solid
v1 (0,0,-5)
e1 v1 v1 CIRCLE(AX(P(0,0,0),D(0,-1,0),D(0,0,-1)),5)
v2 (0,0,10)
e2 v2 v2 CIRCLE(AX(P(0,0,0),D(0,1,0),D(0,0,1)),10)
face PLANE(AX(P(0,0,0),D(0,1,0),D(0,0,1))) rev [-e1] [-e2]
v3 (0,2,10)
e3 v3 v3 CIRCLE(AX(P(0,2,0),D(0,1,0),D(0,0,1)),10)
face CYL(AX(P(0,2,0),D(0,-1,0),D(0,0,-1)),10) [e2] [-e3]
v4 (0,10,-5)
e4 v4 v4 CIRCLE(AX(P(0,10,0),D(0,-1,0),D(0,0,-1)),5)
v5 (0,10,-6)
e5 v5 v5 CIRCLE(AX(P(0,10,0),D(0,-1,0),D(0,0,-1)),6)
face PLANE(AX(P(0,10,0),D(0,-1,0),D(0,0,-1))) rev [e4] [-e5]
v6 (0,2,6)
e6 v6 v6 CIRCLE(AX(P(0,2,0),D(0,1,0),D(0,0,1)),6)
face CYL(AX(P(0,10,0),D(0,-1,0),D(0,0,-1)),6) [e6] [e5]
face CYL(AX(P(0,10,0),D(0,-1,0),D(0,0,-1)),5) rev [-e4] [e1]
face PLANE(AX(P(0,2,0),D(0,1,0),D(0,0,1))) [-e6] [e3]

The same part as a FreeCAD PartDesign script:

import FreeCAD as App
import Part
import Sketcher

doc = App.newDocument("Part")
body = doc.addObject("PartDesign::Body", "Body")

sketch1 = body.newObject("Sketcher::SketchObject", "Sketch")
sketch1.AttachmentSupport = (doc.getObject("XZ_Plane"), [""])
sketch1.MapMode = "FlatFace"
sketch1.addGeometry(Part.Circle(App.Vector(0, 0, 0), App.Vector(0, 0, 1), 10), False)
sketch1.addConstraint([
    Sketcher.Constraint("Coincident", 0, 3, -1, 1),
    Sketcher.Constraint("Diameter", 0, 20.0),
])
pad1 = body.newObject("PartDesign::Pad", "Pad")
pad1.Profile = sketch1
pad1.Length = 2
pad1.Reversed = True

sketch2 = body.newObject("Sketcher::SketchObject", "Sketch001")
sketch2.AttachmentSupport = (doc.getObject("XZ_Plane"), [""])
sketch2.MapMode = "FlatFace"
sketch2.addGeometry([
    Part.Circle(App.Vector(0, 0, 0), App.Vector(0, 0, 1), 6),
    Part.Circle(App.Vector(0, 0, 0), App.Vector(0, 0, 1), 5),
], False)
sketch2.addConstraint([
    Sketcher.Constraint("Coincident", 0, 3, -1, 1),
    Sketcher.Constraint("Coincident", 1, 3, -1, 1),
    Sketcher.Constraint("Diameter", 0, 12.0),
    Sketcher.Constraint("Diameter", 1, 10.0),
])
pad2 = body.newObject("PartDesign::Pad", "Pad001")
pad2.Profile = sketch2
pad2.Length = 10
pad2.Reversed = True

sketch3 = body.newObject("Sketcher::SketchObject", "Sketch002")
sketch3.AttachmentSupport = (doc.getObject("XZ_Plane"), [""])
sketch3.MapMode = "FlatFace"
sketch3.addGeometry(Part.Circle(App.Vector(0, 0, 0), App.Vector(0, 0, 1), 5), False)
sketch3.addConstraint([
    Sketcher.Constraint("Coincident", 0, 3, -1, 1),
    Sketcher.Constraint("Diameter", 0, 10.0),
])
pocket1 = body.newObject("PartDesign::Pocket", "Pocket")
pocket1.Profile = sketch3
pocket1.Length = 10

doc.recompute()
